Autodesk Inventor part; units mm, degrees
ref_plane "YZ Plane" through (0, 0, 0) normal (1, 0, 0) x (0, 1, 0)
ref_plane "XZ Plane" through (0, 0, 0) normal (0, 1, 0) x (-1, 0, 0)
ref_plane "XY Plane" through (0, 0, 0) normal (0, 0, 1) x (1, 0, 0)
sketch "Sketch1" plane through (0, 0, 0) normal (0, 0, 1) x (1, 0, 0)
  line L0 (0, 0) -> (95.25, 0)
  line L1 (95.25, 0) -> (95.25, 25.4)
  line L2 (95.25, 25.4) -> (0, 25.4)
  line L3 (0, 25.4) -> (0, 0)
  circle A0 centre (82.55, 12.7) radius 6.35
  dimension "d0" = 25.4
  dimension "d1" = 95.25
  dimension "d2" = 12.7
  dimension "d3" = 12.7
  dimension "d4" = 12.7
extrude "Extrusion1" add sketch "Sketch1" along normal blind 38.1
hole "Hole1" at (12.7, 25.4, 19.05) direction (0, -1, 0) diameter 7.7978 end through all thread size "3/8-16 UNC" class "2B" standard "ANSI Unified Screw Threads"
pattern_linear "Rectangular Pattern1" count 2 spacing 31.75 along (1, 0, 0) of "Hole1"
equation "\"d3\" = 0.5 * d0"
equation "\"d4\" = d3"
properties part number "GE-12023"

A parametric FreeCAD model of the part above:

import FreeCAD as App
import Part
import Sketcher
Q = App.Units.Quantity

doc = App.newDocument("Part")
body = doc.addObject("PartDesign::Body", "Body")

# Sketch on XY plane
sketch1 = body.newObject("Sketcher::SketchObject", "Sketch")
sketch1.AttachmentSupport = (doc.getObject("XY_Plane"), [""])
sketch1.MapMode = "FlatFace"
sketch1.addGeometry(Part.LineSegment(App.Vector(0, 25, 0), App.Vector(0, 0, 0)), False)
sketch1.addGeometry(Part.LineSegment(App.Vector(0, 0, 0), App.Vector(95, 0, 0)), False)
sketch1.addGeometry(Part.LineSegment(App.Vector(95, 0, 0), App.Vector(95, 25, 0)), False)
sketch1.addGeometry(Part.LineSegment(App.Vector(95, 25, 0), App.Vector(0, 25, 0)), False)
sketch1.addGeometry(Part.Circle(App.Vector(83, 13, 0), App.Vector(0, 0, 1), 6), False)
sketch1.addConstraint(Sketcher.Constraint("Coincident", 0, 2, 1, 1))
sketch1.addConstraint(Sketcher.Constraint("Coincident", 1, 2, 2, 1))
sketch1.addConstraint(Sketcher.Constraint("Coincident", 2, 2, 3, 1))
sketch1.addConstraint(Sketcher.Constraint("Coincident", 3, 2, 0, 1))
sketch1.addConstraint(Sketcher.Constraint("Vertical", 0))
sketch1.addConstraint(Sketcher.Constraint("Horizontal", 1))
sketch1.addConstraint(Sketcher.Constraint("Vertical", 2))
sketch1.addConstraint(Sketcher.Constraint("Horizontal", 3))
sketch1.addConstraint(Sketcher.Constraint("Coincident", 0, 2, -1, 1))
sketch1.addConstraint(Sketcher.Constraint("Diameter", 4, Q("0.5 in")))
sketch1.addConstraint(Sketcher.Constraint("DistanceY", 0, 2, 0, 1, Q("1 in")))
sketch1.addConstraint(Sketcher.Constraint("DistanceX", 1, 1, 1, 2, Q("3.75 in")))
sketch1.addConstraint(Sketcher.Constraint("DistanceY", -1, 1, 4, 3, Q("0.5 in")))
sketch1.addConstraint(Sketcher.Constraint("DistanceX", 4, 3, 1, 2, Q("0.5 in")))
pad1 = body.newObject("PartDesign::Pad", "Pad")
pad1.Profile = sketch1
pad1.Length = Q("1.5 in")

# Sketch on XZ plane
sketch2 = body.newObject("Sketcher::SketchObject", "Sketch001")
sketch2.AttachmentSupport = (doc.getObject("XZ_Plane"), [""])
sketch2.MapMode = "FlatFace"
sketch2.AttachmentOffset = App.Placement(App.Vector(0, 0, -1 * 25.4), App.Rotation())
sketch2.addGeometry(Part.Circle(App.Vector(12.7, 19.1, 0), App.Vector(0, 0, 1), 3.9), False)
sketch2.addConstraint(Sketcher.Constraint("Diameter", 0, Q("0.307 in")))
sketch2.addConstraint(Sketcher.Constraint("DistanceX", -1, 1, 0, 3, Q("0.5 in")))
sketch2.addConstraint(Sketcher.Constraint("DistanceY", -1, 1, 0, 3, Q("0.75 in")))
doc.recompute()
hole = body.newObject("PartDesign::Hole", "Hole")
hole.Profile = sketch2
hole.ThreadType = "None"
hole.Diameter = Q("0.307 in")
hole.DepthType = "ThroughAll"
hole.Reversed = True
doc.recompute()

linearpattern = body.newObject("PartDesign::LinearPattern", "LinearPattern")
linearpattern.Originals = [hole]
linearpattern.Direction = (doc.getObject("X_Axis"), [""])
linearpattern.Mode = "offset"
linearpattern.Offset = Q("1.25 in")
linearpattern.Occurrences = 2
body.Tip = linearpattern

doc.recompute()
